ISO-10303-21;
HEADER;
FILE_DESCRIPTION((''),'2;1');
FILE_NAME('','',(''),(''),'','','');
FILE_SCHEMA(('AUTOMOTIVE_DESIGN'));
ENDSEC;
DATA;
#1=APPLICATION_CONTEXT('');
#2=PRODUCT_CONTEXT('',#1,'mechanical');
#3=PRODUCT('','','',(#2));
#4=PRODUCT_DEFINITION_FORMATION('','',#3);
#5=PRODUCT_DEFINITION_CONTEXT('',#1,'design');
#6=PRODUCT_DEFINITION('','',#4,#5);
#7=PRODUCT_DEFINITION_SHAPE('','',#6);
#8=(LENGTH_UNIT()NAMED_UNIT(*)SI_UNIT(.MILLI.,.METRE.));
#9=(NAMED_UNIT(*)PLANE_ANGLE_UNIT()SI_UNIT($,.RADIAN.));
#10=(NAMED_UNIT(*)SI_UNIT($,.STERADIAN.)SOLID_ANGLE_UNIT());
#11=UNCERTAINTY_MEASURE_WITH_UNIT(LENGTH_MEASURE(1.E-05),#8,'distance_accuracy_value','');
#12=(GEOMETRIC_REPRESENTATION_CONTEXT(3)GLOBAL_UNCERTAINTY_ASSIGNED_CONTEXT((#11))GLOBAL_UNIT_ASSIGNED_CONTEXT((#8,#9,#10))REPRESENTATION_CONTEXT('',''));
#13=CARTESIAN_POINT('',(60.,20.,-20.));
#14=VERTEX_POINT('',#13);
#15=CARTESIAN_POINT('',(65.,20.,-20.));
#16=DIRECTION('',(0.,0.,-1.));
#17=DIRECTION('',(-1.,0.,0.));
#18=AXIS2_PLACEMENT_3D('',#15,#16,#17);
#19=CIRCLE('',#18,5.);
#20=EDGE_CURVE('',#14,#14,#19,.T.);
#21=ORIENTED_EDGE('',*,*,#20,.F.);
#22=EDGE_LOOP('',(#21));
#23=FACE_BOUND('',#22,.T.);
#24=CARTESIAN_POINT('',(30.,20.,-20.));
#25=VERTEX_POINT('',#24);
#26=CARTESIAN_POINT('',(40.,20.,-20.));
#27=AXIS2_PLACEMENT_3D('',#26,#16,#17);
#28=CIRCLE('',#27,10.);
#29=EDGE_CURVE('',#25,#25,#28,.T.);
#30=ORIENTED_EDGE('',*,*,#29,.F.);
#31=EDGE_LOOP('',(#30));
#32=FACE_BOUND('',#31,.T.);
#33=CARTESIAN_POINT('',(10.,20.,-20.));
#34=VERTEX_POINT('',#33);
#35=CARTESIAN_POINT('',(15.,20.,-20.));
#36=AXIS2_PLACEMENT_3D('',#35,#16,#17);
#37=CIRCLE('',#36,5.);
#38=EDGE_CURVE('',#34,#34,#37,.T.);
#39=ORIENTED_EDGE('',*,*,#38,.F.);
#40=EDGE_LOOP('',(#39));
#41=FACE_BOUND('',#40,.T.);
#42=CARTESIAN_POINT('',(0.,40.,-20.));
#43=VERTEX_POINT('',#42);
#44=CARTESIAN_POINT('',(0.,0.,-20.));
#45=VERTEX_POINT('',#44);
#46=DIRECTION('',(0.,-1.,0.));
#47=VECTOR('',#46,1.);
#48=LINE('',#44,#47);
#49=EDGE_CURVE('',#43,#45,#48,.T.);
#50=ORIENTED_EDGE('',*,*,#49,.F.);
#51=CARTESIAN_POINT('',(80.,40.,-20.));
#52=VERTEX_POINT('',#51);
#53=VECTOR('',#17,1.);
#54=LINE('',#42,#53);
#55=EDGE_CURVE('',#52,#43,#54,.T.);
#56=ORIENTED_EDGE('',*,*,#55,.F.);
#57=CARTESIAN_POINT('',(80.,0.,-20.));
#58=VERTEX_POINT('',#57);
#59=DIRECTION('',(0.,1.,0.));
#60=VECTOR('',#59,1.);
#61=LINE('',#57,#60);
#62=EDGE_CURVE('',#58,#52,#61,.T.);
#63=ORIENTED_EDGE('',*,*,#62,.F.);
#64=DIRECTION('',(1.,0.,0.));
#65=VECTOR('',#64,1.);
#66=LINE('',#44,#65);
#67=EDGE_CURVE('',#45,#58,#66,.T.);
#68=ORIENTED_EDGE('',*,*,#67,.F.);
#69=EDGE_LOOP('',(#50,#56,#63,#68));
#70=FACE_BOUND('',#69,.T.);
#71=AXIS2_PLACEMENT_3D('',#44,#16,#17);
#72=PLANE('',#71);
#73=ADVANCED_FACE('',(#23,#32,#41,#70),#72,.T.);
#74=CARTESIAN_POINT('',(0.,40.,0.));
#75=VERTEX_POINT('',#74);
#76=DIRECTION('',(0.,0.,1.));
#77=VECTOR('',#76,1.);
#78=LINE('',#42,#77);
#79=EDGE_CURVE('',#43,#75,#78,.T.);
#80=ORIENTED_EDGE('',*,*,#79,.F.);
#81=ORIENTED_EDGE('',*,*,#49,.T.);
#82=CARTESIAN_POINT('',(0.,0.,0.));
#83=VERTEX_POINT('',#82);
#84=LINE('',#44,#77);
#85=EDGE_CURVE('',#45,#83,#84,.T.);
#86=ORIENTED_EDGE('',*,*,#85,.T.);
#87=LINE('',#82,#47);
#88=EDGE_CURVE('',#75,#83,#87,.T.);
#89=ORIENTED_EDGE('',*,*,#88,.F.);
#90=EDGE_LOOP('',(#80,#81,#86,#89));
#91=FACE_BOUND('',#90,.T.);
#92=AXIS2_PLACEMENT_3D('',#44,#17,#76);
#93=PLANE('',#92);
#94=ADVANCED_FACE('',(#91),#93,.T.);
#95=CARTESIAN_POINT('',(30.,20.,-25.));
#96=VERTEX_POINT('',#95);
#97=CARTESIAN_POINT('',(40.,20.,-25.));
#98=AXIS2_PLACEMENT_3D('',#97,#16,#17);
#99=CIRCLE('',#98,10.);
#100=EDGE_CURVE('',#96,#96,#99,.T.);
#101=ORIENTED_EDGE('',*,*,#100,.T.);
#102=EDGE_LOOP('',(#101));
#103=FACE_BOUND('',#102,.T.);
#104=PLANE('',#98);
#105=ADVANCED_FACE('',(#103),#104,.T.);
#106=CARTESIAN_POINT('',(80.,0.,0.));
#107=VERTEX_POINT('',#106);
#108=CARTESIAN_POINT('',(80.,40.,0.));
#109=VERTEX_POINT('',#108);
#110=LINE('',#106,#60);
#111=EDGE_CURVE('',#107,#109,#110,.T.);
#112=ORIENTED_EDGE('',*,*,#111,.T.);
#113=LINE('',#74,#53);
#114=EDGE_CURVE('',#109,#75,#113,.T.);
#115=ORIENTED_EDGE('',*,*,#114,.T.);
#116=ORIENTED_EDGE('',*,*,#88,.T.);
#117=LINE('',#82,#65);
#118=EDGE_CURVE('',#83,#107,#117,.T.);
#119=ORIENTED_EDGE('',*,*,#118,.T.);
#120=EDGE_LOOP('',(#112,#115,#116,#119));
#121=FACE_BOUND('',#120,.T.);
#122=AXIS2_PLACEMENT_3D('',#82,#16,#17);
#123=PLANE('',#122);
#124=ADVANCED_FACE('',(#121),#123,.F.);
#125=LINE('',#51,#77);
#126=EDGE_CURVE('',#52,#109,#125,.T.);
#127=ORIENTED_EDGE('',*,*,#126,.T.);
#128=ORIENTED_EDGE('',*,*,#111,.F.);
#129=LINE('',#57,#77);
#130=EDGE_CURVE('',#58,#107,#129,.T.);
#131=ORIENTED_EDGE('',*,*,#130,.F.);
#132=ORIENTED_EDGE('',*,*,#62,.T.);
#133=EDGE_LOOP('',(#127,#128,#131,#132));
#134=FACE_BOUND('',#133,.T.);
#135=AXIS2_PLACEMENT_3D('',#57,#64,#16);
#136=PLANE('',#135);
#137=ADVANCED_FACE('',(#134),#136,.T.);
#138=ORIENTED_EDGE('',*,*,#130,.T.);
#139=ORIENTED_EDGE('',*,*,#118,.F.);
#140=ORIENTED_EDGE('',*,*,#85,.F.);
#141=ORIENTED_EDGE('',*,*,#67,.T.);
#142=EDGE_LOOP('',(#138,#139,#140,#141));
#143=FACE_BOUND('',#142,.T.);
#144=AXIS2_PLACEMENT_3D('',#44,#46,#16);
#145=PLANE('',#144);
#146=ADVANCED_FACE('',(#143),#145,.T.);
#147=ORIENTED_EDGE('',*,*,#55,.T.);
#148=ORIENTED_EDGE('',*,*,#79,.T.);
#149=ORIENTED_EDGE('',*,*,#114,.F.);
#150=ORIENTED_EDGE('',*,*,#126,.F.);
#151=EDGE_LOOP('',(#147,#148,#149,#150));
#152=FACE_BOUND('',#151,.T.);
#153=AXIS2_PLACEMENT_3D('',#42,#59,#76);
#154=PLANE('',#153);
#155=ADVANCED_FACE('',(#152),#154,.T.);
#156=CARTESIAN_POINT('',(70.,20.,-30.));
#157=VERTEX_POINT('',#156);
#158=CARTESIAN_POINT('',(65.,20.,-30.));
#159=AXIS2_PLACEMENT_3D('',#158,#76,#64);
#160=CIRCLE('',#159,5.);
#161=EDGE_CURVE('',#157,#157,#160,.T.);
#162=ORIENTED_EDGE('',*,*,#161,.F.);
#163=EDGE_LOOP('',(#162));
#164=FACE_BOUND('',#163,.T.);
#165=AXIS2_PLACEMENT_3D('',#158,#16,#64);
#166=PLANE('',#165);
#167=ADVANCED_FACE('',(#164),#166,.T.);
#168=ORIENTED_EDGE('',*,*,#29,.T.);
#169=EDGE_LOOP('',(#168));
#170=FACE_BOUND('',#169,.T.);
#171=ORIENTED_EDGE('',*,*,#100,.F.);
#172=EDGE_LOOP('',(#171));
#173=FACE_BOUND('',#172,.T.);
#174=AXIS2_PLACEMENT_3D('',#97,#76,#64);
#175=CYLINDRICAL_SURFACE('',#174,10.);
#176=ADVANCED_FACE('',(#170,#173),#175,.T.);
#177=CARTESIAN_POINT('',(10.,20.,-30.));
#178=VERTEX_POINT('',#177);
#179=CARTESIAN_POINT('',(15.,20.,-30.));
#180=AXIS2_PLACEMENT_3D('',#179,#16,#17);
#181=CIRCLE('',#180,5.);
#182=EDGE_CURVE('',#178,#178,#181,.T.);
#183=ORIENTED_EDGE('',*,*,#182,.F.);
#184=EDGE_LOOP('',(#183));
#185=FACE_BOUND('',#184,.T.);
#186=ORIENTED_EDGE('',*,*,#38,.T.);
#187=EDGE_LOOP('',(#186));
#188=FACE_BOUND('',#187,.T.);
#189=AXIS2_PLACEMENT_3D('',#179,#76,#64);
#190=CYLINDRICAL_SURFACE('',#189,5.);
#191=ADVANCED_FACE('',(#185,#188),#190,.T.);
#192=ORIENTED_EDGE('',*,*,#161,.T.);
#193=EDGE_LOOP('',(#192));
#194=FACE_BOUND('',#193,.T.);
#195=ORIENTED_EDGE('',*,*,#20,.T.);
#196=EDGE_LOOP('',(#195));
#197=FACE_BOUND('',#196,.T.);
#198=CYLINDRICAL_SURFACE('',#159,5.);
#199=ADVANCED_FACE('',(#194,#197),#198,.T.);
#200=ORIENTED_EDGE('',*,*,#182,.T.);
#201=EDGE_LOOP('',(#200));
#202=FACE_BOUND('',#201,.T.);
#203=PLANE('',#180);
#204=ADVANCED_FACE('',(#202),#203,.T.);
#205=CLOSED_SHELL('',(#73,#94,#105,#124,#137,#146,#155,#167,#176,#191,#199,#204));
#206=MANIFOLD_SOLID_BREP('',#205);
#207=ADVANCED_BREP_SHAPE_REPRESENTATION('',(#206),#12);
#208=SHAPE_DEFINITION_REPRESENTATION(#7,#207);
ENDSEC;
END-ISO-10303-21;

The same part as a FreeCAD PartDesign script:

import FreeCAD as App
import Part
import Sketcher

doc = App.newDocument("Part")
params = doc.addObject("Spreadsheet::Sheet", "Params")
for row, (alias, value) in enumerate([
    ("sketch1_width", "80 mm"),
    ("sketch1_height", "40 mm"),
    ("pad1_length", "20 mm"),
    ("sketch2_diameter", "20 mm"),
    ("pad2_length", "5 mm"),
    ("sketch3_diameter", "10 mm"),
    ("pad3_length", "10 mm"),
], start=1):
    params.set(f"A{row}", alias)
    params.set(f"B{row}", "=" + value)
    params.setAlias(f"B{row}", alias)

body = doc.addObject("PartDesign::Body", "Body")

# Sketch on XY plane
sketch1 = body.newObject("Sketcher::SketchObject", "Sketch")
sketch1.AttachmentSupport = (doc.getObject("XY_Plane"), [""])
sketch1.MapMode = "FlatFace"
sketch1.addGeometry(Part.LineSegment(App.Vector(0, 40, 0), App.Vector(0, 0, 0)), False)
sketch1.addGeometry(Part.LineSegment(App.Vector(0, 0, 0), App.Vector(80, 0, 0)), False)
sketch1.addGeometry(Part.LineSegment(App.Vector(80, 0, 0), App.Vector(80, 40, 0)), False)
sketch1.addGeometry(Part.LineSegment(App.Vector(80, 40, 0), App.Vector(0, 40, 0)), False)
sketch1.addConstraint(Sketcher.Constraint("Coincident", 0, 2, 1, 1))
sketch1.addConstraint(Sketcher.Constraint("Coincident", 1, 2, 2, 1))
sketch1.addConstraint(Sketcher.Constraint("Coincident", 2, 2, 3, 1))
sketch1.addConstraint(Sketcher.Constraint("Coincident", 3, 2, 0, 1))
sketch1.addConstraint(Sketcher.Constraint("Vertical", 0))
sketch1.addConstraint(Sketcher.Constraint("Horizontal", 1))
sketch1.addConstraint(Sketcher.Constraint("Vertical", 2))
sketch1.addConstraint(Sketcher.Constraint("Horizontal", 3))
sketch1.addConstraint(Sketcher.Constraint("Coincident", 0, 2, -1, 1))
sketch1.addConstraint(Sketcher.Constraint("DistanceX", 1, 1, 1, 2, 80.0))
sketch1.addConstraint(Sketcher.Constraint("DistanceY", 0, 2, 0, 1, 40.0))
sketch1.setExpression("Constraints[9]", "Params.sketch1_width")
sketch1.setExpression("Constraints[10]", "Params.sketch1_height")
pad1 = body.newObject("PartDesign::Pad", "Pad")
pad1.Profile = sketch1
pad1.setExpression("Length", "Params.pad1_length")
pad1.Reversed = True

# Sketch on XY plane
sketch2 = body.newObject("Sketcher::SketchObject", "Sketch001")
sketch2.AttachmentSupport = (doc.getObject("XY_Plane"), [""])
sketch2.MapMode = "FlatFace"
sketch2.AttachmentOffset = App.Placement(App.Vector(0, 0, -20), App.Rotation())
sketch2.addGeometry(Part.Circle(App.Vector(40, 20, 0), App.Vector(0, 0, 1), 10), False)
sketch2.addConstraint(Sketcher.Constraint("Diameter", 0, 20.0))
sketch2.addConstraint(Sketcher.Constraint("DistanceX", -1, 1, 0, 3, 40.0))
sketch2.addConstraint(Sketcher.Constraint("DistanceY", -1, 1, 0, 3, 20.0))
sketch2.setExpression("Constraints[0]", "Params.sketch2_diameter")
pad2 = body.newObject("PartDesign::Pad", "Pad001")
pad2.Profile = sketch2
pad2.setExpression("Length", "Params.pad2_length")
pad2.Reversed = True

# Sketch on XY plane
sketch3 = body.newObject("Sketcher::SketchObject", "Sketch002")
sketch3.AttachmentSupport = (doc.getObject("XY_Plane"), [""])
sketch3.MapMode = "FlatFace"
sketch3.AttachmentOffset = App.Placement(App.Vector(0, 0, -20), App.Rotation())
sketch3.addGeometry(Part.Circle(App.Vector(15, 20, 0), App.Vector(0, 0, 1), 5), False)
sketch3.addConstraint(Sketcher.Constraint("Diameter", 0, 10.0))
sketch3.addConstraint(Sketcher.Constraint("DistanceX", -1, 1, 0, 3, 15.0))
sketch3.addConstraint(Sketcher.Constraint("DistanceY", -1, 1, 0, 3, 20.0))
sketch3.setExpression("Constraints[0]", "Params.sketch3_diameter")
pad3 = body.newObject("PartDesign::Pad", "Pad002")
pad3.Profile = sketch3
pad3.setExpression("Length", "Params.pad3_length")
pad3.Reversed = True
doc.recompute()

datumplane = body.newObject("PartDesign::Plane", "DatumPlane")
datumplane.AttachmentSupport = (doc.getObject("YZ_Plane"), [""])
datumplane.MapMode = "FlatFace"
datumplane.AttachmentOffset = App.Placement(App.Vector(0, 0, 40), App.Rotation())
mirrored = body.newObject("PartDesign::Mirrored", "Mirrored")
mirrored.Originals = [pad3]
mirrored.MirrorPlane = (datumplane, [""])
body.Tip = mirrored

doc.recompute()
